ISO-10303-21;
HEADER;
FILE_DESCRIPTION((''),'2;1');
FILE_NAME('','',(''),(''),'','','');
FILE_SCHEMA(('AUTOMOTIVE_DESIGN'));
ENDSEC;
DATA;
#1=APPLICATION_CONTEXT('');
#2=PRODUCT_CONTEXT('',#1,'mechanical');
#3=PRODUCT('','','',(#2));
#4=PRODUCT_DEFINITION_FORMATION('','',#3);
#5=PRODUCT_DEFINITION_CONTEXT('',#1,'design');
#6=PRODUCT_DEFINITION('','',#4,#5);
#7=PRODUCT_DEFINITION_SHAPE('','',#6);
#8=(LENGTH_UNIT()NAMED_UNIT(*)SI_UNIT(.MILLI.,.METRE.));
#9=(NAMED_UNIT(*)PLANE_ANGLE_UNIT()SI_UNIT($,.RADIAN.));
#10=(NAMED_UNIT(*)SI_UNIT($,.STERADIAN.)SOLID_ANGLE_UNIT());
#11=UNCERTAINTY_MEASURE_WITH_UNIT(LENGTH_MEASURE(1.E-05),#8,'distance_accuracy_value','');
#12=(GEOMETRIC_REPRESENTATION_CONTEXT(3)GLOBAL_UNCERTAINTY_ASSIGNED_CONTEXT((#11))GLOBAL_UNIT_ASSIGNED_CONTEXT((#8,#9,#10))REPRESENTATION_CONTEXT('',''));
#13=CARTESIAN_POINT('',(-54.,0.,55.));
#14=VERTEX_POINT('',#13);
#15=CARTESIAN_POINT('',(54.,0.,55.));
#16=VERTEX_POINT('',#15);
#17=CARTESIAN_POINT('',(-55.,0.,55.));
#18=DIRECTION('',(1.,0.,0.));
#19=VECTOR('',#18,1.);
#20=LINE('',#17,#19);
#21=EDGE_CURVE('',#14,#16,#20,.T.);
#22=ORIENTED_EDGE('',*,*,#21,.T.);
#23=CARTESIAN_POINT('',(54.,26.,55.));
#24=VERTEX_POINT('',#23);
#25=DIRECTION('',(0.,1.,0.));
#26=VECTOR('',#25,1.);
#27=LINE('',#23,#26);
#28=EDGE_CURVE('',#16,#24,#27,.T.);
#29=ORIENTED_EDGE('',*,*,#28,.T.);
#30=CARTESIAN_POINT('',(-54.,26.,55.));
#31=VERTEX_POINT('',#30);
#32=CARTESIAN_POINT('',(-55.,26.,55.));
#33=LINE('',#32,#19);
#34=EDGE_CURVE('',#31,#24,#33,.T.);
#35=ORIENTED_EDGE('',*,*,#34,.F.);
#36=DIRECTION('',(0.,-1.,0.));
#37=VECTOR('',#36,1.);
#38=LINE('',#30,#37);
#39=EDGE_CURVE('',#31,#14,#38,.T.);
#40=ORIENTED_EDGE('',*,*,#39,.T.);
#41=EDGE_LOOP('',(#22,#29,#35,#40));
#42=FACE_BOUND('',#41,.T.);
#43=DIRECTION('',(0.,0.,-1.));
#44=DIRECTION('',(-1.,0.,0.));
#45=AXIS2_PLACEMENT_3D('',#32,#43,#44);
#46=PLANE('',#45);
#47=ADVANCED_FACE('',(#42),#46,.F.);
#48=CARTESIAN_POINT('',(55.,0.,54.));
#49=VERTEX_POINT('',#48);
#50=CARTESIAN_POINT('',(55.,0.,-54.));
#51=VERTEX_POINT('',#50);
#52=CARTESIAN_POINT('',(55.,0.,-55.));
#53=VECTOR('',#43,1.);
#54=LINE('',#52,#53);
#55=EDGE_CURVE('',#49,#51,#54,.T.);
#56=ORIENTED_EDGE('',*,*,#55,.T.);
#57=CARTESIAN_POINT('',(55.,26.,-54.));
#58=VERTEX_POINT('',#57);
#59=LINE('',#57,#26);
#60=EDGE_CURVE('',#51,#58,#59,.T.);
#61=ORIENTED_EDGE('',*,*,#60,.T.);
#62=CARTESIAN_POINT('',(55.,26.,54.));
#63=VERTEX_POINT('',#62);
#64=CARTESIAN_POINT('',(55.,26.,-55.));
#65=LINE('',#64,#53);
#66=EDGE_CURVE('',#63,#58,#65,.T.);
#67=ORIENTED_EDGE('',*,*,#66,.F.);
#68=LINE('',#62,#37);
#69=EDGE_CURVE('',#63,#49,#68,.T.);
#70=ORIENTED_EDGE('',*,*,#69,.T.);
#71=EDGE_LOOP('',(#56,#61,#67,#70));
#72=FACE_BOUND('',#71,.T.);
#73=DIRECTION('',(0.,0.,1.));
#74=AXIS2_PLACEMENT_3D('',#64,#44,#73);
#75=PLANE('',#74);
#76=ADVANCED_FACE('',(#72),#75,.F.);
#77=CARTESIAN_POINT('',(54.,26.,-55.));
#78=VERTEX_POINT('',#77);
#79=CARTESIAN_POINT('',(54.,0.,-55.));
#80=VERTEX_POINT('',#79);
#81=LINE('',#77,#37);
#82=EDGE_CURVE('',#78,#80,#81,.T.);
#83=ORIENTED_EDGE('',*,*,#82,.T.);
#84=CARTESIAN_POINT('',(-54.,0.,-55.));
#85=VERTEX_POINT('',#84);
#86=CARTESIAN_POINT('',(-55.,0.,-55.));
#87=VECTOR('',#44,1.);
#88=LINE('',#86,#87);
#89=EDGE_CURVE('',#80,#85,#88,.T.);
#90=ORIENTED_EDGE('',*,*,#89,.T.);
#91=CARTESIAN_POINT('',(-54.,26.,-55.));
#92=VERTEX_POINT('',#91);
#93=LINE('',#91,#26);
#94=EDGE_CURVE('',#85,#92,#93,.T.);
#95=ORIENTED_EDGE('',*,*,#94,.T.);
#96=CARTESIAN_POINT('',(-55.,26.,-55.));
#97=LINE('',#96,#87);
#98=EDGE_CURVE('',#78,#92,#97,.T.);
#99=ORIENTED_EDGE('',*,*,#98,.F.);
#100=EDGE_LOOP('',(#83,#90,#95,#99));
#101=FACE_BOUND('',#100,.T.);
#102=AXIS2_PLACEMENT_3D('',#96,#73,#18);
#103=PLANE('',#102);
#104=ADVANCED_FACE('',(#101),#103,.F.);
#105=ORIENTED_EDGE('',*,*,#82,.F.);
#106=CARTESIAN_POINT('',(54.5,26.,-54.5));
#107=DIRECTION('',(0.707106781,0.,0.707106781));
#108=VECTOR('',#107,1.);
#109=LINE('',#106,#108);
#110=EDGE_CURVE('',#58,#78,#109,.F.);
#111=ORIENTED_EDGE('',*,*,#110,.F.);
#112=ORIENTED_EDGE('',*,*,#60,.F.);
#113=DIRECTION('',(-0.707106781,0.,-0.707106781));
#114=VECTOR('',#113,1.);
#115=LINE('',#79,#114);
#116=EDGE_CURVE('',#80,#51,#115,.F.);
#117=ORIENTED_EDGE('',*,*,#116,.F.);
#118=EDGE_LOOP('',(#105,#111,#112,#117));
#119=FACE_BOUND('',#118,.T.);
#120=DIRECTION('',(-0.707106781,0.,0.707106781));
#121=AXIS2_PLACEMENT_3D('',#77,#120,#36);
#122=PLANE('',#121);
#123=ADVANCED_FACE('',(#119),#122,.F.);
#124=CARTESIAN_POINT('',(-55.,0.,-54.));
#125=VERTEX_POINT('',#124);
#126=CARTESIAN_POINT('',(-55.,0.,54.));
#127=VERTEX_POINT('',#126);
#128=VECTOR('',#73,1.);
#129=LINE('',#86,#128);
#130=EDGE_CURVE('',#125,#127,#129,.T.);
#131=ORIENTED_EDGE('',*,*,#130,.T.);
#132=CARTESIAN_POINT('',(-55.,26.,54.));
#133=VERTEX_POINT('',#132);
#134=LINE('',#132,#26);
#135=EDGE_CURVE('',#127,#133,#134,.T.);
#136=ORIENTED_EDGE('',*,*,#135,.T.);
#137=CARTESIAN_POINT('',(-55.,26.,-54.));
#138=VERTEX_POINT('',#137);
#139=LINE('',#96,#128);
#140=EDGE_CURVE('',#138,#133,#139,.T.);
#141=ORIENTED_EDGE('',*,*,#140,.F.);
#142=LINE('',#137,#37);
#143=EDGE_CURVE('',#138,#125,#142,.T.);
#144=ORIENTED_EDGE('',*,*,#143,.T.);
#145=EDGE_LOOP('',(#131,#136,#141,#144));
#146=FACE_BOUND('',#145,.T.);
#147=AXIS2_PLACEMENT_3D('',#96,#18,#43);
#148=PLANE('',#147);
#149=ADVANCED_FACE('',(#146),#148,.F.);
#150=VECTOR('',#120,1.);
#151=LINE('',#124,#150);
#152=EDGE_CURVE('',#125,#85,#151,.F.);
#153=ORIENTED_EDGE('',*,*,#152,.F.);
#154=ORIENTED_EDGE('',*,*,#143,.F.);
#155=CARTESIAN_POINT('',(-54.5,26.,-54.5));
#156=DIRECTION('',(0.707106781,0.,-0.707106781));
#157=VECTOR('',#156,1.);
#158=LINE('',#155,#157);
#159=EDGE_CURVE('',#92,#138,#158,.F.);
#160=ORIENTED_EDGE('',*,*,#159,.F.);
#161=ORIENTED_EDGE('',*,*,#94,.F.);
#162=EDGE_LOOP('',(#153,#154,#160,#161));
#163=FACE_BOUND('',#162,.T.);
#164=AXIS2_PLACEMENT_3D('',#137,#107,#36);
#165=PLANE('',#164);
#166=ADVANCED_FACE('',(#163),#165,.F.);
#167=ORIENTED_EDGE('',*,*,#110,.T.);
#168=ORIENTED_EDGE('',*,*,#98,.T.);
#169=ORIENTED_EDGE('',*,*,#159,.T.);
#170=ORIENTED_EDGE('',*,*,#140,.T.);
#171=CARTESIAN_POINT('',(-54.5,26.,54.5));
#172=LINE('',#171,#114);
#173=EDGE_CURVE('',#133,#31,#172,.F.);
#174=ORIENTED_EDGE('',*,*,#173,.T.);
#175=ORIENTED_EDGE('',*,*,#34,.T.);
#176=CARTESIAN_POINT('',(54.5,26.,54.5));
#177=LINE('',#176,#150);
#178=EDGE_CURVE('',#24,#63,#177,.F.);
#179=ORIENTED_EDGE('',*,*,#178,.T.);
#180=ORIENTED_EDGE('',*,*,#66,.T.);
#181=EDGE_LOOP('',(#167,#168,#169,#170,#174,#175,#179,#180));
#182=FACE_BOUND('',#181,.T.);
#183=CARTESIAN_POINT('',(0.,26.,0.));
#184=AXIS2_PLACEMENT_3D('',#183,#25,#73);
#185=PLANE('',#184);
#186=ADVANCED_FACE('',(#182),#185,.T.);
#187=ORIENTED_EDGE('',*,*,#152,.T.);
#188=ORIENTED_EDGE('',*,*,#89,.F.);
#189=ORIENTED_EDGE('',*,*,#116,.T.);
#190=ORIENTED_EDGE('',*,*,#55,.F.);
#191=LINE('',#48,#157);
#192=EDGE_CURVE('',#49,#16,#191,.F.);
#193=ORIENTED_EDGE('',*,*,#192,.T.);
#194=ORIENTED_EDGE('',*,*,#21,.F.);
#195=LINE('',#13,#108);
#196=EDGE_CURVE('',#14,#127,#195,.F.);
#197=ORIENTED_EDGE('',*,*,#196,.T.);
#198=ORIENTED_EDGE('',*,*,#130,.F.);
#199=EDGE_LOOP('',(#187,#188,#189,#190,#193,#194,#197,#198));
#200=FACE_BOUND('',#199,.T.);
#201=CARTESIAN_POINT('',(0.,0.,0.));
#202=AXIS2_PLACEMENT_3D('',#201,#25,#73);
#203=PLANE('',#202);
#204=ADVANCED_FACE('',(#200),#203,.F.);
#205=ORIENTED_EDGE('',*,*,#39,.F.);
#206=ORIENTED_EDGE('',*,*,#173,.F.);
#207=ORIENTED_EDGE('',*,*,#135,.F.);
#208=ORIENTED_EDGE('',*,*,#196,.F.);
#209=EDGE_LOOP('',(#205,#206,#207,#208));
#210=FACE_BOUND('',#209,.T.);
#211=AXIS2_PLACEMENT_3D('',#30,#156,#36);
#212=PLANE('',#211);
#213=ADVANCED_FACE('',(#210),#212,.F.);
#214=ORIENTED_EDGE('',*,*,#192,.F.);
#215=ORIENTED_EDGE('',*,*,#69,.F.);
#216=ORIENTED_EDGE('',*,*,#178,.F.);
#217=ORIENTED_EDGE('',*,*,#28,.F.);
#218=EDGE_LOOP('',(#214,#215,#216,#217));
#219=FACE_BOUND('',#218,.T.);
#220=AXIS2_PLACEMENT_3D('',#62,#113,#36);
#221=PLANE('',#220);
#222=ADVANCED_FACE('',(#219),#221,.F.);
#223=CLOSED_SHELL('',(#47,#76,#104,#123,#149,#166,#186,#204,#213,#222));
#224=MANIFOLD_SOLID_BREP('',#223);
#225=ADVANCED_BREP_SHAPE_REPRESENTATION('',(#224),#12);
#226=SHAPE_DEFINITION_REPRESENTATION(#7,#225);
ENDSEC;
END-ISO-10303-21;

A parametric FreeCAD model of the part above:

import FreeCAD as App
import Part
import Sketcher

V = App.Vector


def edges_at(feature, points):
    """Names of the edges that pass closest to the given points."""
    edges = feature.Shape.Edges
    near = lambda p: min(range(len(edges)), key=lambda i: edges[i].distToShape(Part.Vertex(*p))[0])
    return sorted({f"Edge{near(p) + 1}" for p in points})

doc = App.newDocument("Part")
params = doc.addObject("Spreadsheet::Sheet", "Params")
for row, (alias, value) in enumerate([
    ("sketch1_width", "110 mm"),
    ("pad1_length", "26 mm"),
    ("chamfer_size", "1 mm"),
], start=1):
    params.set(f"A{row}", alias)
    params.set(f"B{row}", "=" + value)
    params.setAlias(f"B{row}", alias)

body = doc.addObject("PartDesign::Body", "Body")

# Sketch on XZ plane
sketch1 = doc.addObject("Sketcher::SketchObject", "Sketch")
body.addObject(sketch1)
sketch1.AttachmentSupport = (doc.XZ_Plane, [""])
sketch1.MapMode = "FlatFace"
sketch1.addGeometry([
    Part.LineSegment(V(-55, -55, 0), V(-55, 55, 0)),
    Part.LineSegment(V(-55, 55, 0), V(55, 55, 0)),
    Part.LineSegment(V(55, 55, 0), V(55, -55, 0)),
    Part.LineSegment(V(55, -55, 0), V(-55, -55, 0)),
], False)
sketch1.addConstraint([
    Sketcher.Constraint("Coincident", 0, 2, 1, 1),
    Sketcher.Constraint("Coincident", 1, 2, 2, 1),
    Sketcher.Constraint("Coincident", 2, 2, 3, 1),
    Sketcher.Constraint("Coincident", 3, 2, 0, 1),
    Sketcher.Constraint("Vertical", 0),
    Sketcher.Constraint("Horizontal", 1),
    Sketcher.Constraint("Vertical", 2),
    Sketcher.Constraint("Horizontal", 3),
    Sketcher.Constraint("Symmetric", 0, 2, 2, 2, -1, 1),
    Sketcher.Constraint("Equal", 3, 0),
    Sketcher.Constraint("DistanceX", 1, 1, 1, 2, 110.0),
])
sketch1.setExpression("Constraints[10]", "Params.sketch1_width")
pad1 = doc.addObject("PartDesign::Pad", "Pad")
body.addObject(pad1)
pad1.Profile = sketch1
pad1.setExpression("Length", "Params.pad1_length")
pad1.Reversed = True
doc.recompute()

chamfer = doc.addObject("PartDesign::Chamfer", "Chamfer")
body.addObject(chamfer)
chamfer.Base = (pad1, edges_at(pad1, [
    (55, 13, 55),
    (-55, 13, 55),
    (-55, 13, -55),
    (55, 13, -55),
]))
chamfer.setExpression("Size", "Params.chamfer_size")

doc.recompute()
